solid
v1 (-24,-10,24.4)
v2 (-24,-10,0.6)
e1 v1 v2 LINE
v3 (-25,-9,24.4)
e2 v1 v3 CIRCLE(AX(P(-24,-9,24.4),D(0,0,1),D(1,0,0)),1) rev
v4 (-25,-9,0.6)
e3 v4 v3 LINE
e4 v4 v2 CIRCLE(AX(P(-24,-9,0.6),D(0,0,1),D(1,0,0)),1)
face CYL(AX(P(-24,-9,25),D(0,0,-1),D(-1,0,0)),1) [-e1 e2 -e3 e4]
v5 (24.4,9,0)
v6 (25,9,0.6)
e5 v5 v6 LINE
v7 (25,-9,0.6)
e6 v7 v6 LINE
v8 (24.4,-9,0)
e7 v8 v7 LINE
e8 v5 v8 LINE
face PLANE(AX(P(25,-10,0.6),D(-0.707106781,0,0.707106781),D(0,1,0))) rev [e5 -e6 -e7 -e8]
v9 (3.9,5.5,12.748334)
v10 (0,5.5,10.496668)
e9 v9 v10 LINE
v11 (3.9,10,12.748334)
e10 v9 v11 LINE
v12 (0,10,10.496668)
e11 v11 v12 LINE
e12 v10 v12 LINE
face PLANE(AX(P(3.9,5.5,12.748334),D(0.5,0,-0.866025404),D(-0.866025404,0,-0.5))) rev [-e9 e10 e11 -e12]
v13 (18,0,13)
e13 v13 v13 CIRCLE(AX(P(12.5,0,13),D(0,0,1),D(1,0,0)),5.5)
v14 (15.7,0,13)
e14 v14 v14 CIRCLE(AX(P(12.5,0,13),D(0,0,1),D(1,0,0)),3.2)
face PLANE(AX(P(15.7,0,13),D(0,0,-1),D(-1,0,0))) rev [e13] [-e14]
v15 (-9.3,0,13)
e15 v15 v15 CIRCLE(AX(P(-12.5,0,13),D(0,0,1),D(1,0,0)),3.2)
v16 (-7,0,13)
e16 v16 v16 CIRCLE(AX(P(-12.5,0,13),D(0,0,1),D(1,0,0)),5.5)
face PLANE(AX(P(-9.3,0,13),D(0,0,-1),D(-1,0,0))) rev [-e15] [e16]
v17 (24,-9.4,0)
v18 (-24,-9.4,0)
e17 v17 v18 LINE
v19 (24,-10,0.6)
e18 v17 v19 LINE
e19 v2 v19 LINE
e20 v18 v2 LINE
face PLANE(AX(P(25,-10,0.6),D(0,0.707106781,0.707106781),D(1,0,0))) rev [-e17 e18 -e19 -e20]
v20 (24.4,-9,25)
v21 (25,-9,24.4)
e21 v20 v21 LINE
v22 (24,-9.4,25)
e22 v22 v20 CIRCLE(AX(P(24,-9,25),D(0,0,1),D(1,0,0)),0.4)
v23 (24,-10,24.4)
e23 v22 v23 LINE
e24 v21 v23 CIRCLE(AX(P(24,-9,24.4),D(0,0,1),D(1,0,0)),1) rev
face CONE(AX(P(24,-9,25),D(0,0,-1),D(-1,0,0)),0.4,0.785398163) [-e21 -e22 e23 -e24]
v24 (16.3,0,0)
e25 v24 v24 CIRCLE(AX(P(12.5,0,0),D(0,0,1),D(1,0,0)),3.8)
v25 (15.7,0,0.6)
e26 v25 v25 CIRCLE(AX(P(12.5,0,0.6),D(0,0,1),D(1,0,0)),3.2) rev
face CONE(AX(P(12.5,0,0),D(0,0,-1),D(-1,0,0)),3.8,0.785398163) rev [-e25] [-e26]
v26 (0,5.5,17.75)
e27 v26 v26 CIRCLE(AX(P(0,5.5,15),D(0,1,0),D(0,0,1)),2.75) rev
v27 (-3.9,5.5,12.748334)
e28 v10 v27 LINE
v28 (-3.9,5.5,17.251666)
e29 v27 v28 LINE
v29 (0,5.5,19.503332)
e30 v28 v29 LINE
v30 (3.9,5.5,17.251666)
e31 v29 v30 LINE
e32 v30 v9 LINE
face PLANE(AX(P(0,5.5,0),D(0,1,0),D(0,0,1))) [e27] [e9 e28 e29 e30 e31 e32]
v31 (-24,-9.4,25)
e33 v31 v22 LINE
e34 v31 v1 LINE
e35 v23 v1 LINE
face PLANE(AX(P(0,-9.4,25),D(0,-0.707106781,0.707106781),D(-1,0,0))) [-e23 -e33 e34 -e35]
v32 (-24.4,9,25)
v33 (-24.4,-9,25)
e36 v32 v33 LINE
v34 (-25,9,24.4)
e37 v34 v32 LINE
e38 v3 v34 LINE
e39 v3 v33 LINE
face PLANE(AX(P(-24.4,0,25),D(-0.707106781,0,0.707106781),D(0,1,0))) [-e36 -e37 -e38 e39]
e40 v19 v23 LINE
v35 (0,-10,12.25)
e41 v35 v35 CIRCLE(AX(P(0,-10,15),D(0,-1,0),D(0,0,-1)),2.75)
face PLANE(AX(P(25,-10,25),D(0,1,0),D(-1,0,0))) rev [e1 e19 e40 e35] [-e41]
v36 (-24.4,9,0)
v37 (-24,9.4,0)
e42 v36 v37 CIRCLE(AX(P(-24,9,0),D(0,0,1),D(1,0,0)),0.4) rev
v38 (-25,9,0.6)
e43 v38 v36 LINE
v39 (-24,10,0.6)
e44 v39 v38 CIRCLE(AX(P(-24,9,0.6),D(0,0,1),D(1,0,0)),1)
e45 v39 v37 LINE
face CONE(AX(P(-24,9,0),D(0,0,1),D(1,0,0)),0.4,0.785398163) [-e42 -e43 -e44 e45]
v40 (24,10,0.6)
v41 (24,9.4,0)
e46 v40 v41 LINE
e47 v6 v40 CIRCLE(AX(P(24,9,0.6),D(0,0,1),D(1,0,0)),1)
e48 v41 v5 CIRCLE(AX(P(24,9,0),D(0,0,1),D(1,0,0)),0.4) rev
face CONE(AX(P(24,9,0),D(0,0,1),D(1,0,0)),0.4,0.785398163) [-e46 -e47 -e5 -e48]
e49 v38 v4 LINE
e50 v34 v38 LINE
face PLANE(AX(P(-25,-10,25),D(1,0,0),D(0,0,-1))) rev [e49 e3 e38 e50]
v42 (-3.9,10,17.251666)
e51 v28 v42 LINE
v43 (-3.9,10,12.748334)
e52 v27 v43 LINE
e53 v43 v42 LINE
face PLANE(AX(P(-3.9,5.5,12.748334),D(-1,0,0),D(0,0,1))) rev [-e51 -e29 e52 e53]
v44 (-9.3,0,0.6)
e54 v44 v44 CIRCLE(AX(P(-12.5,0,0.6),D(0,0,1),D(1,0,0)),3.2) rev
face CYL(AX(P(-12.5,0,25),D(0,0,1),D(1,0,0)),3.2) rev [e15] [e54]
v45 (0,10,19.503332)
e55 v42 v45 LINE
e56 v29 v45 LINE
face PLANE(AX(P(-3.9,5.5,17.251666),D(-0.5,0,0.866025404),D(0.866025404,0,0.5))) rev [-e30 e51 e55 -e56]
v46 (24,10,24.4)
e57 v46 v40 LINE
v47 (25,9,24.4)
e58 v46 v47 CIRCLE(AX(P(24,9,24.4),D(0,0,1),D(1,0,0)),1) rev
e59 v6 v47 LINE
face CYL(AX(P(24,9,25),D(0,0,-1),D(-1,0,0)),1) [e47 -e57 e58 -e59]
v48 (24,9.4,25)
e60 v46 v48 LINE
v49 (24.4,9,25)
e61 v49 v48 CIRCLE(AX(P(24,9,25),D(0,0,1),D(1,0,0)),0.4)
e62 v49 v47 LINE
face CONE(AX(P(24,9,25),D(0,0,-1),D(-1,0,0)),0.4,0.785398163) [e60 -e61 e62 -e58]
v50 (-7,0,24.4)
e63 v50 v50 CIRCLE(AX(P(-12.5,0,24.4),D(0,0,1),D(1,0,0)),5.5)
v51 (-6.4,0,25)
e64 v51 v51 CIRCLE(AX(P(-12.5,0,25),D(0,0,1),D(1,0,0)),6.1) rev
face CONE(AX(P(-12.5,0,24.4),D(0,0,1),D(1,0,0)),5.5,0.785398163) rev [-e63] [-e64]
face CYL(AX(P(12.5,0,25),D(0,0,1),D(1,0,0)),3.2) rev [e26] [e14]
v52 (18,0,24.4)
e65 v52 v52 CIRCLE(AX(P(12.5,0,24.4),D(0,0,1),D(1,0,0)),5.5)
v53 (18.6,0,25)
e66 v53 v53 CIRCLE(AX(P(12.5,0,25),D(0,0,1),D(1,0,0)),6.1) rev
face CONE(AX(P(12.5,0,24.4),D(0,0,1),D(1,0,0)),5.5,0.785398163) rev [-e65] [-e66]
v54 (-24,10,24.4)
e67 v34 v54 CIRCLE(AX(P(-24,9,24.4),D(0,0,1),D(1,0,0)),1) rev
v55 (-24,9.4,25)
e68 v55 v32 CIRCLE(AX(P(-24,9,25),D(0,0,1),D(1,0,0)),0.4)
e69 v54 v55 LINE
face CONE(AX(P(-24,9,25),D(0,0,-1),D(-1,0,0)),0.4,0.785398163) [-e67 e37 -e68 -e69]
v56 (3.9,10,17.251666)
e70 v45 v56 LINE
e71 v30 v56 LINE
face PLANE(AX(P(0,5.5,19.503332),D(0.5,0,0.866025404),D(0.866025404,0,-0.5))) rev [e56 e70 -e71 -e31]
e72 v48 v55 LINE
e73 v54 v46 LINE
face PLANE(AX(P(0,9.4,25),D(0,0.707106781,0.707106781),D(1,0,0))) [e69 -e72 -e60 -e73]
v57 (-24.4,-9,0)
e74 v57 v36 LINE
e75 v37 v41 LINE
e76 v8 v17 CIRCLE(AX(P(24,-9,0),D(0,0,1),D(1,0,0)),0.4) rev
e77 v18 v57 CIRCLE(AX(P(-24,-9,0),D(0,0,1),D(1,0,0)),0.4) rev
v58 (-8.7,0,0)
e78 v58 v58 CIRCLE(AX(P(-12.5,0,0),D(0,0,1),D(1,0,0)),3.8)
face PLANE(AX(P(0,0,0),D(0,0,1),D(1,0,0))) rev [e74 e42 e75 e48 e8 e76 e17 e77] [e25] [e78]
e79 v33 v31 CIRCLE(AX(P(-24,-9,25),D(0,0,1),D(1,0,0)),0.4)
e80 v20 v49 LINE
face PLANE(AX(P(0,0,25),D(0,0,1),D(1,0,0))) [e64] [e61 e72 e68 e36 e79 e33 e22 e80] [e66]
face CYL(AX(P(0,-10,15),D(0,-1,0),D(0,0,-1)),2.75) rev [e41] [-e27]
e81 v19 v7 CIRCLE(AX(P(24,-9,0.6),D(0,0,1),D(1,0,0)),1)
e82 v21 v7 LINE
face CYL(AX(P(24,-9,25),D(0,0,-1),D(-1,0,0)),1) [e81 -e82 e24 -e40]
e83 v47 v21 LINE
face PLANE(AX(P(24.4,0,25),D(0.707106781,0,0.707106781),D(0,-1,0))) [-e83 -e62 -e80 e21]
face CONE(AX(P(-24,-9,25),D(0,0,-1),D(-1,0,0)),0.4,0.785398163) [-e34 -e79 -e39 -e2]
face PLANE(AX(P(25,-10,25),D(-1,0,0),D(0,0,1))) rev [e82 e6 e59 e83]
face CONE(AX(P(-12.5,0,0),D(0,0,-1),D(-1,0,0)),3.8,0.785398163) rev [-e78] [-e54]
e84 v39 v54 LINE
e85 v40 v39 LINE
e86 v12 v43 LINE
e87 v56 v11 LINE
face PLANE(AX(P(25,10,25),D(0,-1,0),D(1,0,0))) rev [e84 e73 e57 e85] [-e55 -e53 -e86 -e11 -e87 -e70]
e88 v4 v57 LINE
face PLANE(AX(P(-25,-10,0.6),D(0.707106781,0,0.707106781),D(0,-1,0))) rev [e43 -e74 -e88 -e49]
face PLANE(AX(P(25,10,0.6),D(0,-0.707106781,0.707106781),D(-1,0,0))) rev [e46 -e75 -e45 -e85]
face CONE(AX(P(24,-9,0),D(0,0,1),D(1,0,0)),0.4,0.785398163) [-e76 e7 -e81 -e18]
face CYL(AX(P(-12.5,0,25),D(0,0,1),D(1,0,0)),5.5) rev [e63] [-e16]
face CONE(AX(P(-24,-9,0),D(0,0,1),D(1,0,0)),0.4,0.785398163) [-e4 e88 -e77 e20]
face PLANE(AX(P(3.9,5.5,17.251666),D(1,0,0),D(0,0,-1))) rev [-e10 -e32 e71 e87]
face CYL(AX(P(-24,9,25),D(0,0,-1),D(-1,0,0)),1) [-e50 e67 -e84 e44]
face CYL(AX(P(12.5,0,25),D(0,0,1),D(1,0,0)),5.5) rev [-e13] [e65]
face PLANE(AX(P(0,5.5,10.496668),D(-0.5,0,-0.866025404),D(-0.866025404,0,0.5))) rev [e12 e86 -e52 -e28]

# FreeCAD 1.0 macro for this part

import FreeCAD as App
import Part
import Sketcher
from FreeCAD import Vector
Q = App.Units.Quantity


def edges_at(feature, points):
    """Names of the edges that pass closest to the given points."""
    edges = feature.Shape.Edges
    near = lambda p: min(range(len(edges)), key=lambda i: edges[i].distToShape(Part.Vertex(*p))[0])
    return sorted({f"Edge{near(p) + 1}" for p in points})


def add_polygon(sketch, points):
    """Adds a closed chain of lines whose ends are joined by coincident constraints."""
    first, n = sketch.GeometryCount, len(points)
    for a, b in zip(points, points[1:] + points[:1]):
        sketch.addGeometry(Part.LineSegment(App.Vector(*a, 0), App.Vector(*b, 0)), False)
    for i in range(n):
        sketch.addConstraint(Sketcher.Constraint("Coincident", first + i, 2, first + (i + 1) % n, 1))

doc = App.newDocument("Part")
body = doc.addObject("PartDesign::Body", "Body")

sketch1 = body.newObject("Sketcher::SketchObject", "Sketch")
sketch1.AttachmentSupport = (doc.getObject("XY_Plane"), [""])
sketch1.MapMode = "FlatFace"
add_polygon(sketch1, [(-25, 10), (-25, -10), (25, -10), (25, 10)])
sketch1.addConstraint(Sketcher.Constraint("Vertical", 0))
sketch1.addConstraint(Sketcher.Constraint("Horizontal", 1))
sketch1.addConstraint(Sketcher.Constraint("Vertical", 2))
sketch1.addConstraint(Sketcher.Constraint("Horizontal", 3))
sketch1.addConstraint(Sketcher.Constraint("Symmetric", 0, 2, 2, 2, -1, 1))
sketch1.addConstraint(Sketcher.Constraint("DistanceX", 1, 1, 1, 2, Q("50 mm")))
sketch1.addConstraint(Sketcher.Constraint("DistanceY", 0, 2, 0, 1, Q("20 mm")))
pad1 = body.newObject("PartDesign::Pad", "Pad")
pad1.Profile = sketch1
pad1.Length = 25

sketch2 = body.newObject("Sketcher::SketchObject", "Sketch001")
sketch2.AttachmentSupport = (doc.getObject("XY_Plane"), [""])
sketch2.MapMode = "FlatFace"
sketch2.AttachmentOffset = App.Placement(Vector(0, 0, 25), App.Rotation())
sketch2.addGeometry(Part.Circle(Vector(-12.5, 0, 0), Vector(0, 0, 1), 3.2), False)
sketch2.addGeometry(Part.Circle(Vector(12.5, 0, 0), Vector(0, 0, 1), 3.2), False)
sketch2.addConstraint(Sketcher.Constraint("Equal", 0, 1))
sketch2.addConstraint(Sketcher.Constraint("Symmetric", 0, 3, 1, 3, -1, 1))
sketch2.addConstraint(Sketcher.Constraint("PointOnObject", 0, 3, -1))
sketch2.addConstraint(Sketcher.Constraint("Diameter", 0, Q("6.4 mm")))
sketch2.addConstraint(Sketcher.Constraint("DistanceX", 0, 3, 1, 3, Q("25 mm")))
doc.recompute()
hole = body.newObject("PartDesign::Hole", "Hole")
hole.Profile = sketch2
hole.ThreadType = "None"
hole.Diameter = 6.4
hole.DepthType = "ThroughAll"
hole.HoleCutType = "Counterbore"
hole.HoleCutDiameter = 11
hole.HoleCutDepth = 12

sketch3 = body.newObject("Sketcher::SketchObject", "Sketch002")
sketch3.AttachmentSupport = (doc.getObject("XZ_Plane"), [""])
sketch3.MapMode = "FlatFace"
sketch3.AttachmentOffset = App.Placement(Vector(0, 0, 10), App.Rotation())
sketch3.addGeometry(Part.Circle(Vector(0, 15, 0), Vector(0, 0, 1), 2.8), False)
sketch3.addConstraint(Sketcher.Constraint("PointOnObject", 0, 3, -2))
sketch3.addConstraint(Sketcher.Constraint("Diameter", 0, Q("5.5 mm")))
sketch3.addConstraint(Sketcher.Constraint("DistanceY", -1, 1, 0, 3, Q("15 mm")))
doc.recompute()
hole2 = body.newObject("PartDesign::Hole", "Hole001")
hole2.Profile = sketch3
hole2.ThreadType = "None"
hole2.Diameter = 5.5
hole2.DepthType = "ThroughAll"

sketch4 = body.newObject("Sketcher::SketchObject", "Sketch003")
sketch4.AttachmentSupport = (doc.getObject("XZ_Plane"), [""])
sketch4.MapMode = "FlatFace"
sketch4.AttachmentOffset = App.Placement(Vector(0, 0, -10), App.Rotation())
add_polygon(sketch4, [(3.9, 12.7), (0, 10.5), (-3.9, 12.7), (-3.9, 17.3), (0, 19.5), (3.9, 17.3)])
sketch4.addConstraint(Sketcher.Constraint("Vertical", 2))
sketch4.addConstraint(Sketcher.Constraint("Vertical", 5))
sketch4.addConstraint(Sketcher.Constraint("Symmetric", 2, 2, 4, 2, -2))
sketch4.addConstraint(Sketcher.Constraint("PointOnObject", 0, 2, -2))
sketch4.addConstraint(Sketcher.Constraint("PointOnObject", 3, 2, -2))
sketch4.addConstraint(Sketcher.Constraint("Parallel", 0, 3))
sketch4.addConstraint(Sketcher.Constraint("Parallel", 1, 4))
sketch4.addConstraint(Sketcher.Constraint("Angle", 0, Q("-150 deg")))
sketch4.addConstraint(Sketcher.Constraint("DistanceX", 1, 2, -1, 1, Q("3.9 mm")))
sketch4.addConstraint(Sketcher.Constraint("DistanceY", 0, 2, 2, 2, Q("6.754998 mm")))
sketch4.addConstraint(Sketcher.Constraint("DistanceY", -1, 1, 0, 2, Q("10.496668 mm")))
pocket1 = body.newObject("PartDesign::Pocket", "Pocket")
pocket1.Profile = sketch4
pocket1.Length = 4.5
pocket1.Reversed = True
doc.recompute()

fillet = body.newObject("PartDesign::Fillet", "Fillet")
fillet.Base = (pocket1, edges_at(pocket1, [
    (-25, 10, 12.5),
    (25, 10, 12.5),
    (25, -10, 12.5),
    (-25, -10, 12.5),
]))
fillet.Radius = 1
doc.recompute()

chamfer = body.newObject("PartDesign::Chamfer", "Chamfer")
chamfer.Base = (fillet, edges_at(fillet, [
    (7, 0, 25),
    (15.7, 0, 0),
    (-18, 0, 25),
    (-9.3, 0, 0),
    (-25, 0, 0),
    (-25, 0, 25),
    (0, 10, 0),
    (25, 0, 0),
    (0, -10, 0),
    (24.707, -9.707, 0),
    (24.707, 9.707, 0),
    (-24.707, -9.707, 0),
    (-24.707, 9.707, 0),
    (0, 10, 25),
    (0, -10, 25),
    (25, 0, 25),
    (24.707, -9.707, 25),
    (24.707, 9.707, 25),
    (-24.707, -9.707, 25),
    (-24.707, 9.707, 25),
]))
chamfer.Size = 0.6

doc.recompute()
